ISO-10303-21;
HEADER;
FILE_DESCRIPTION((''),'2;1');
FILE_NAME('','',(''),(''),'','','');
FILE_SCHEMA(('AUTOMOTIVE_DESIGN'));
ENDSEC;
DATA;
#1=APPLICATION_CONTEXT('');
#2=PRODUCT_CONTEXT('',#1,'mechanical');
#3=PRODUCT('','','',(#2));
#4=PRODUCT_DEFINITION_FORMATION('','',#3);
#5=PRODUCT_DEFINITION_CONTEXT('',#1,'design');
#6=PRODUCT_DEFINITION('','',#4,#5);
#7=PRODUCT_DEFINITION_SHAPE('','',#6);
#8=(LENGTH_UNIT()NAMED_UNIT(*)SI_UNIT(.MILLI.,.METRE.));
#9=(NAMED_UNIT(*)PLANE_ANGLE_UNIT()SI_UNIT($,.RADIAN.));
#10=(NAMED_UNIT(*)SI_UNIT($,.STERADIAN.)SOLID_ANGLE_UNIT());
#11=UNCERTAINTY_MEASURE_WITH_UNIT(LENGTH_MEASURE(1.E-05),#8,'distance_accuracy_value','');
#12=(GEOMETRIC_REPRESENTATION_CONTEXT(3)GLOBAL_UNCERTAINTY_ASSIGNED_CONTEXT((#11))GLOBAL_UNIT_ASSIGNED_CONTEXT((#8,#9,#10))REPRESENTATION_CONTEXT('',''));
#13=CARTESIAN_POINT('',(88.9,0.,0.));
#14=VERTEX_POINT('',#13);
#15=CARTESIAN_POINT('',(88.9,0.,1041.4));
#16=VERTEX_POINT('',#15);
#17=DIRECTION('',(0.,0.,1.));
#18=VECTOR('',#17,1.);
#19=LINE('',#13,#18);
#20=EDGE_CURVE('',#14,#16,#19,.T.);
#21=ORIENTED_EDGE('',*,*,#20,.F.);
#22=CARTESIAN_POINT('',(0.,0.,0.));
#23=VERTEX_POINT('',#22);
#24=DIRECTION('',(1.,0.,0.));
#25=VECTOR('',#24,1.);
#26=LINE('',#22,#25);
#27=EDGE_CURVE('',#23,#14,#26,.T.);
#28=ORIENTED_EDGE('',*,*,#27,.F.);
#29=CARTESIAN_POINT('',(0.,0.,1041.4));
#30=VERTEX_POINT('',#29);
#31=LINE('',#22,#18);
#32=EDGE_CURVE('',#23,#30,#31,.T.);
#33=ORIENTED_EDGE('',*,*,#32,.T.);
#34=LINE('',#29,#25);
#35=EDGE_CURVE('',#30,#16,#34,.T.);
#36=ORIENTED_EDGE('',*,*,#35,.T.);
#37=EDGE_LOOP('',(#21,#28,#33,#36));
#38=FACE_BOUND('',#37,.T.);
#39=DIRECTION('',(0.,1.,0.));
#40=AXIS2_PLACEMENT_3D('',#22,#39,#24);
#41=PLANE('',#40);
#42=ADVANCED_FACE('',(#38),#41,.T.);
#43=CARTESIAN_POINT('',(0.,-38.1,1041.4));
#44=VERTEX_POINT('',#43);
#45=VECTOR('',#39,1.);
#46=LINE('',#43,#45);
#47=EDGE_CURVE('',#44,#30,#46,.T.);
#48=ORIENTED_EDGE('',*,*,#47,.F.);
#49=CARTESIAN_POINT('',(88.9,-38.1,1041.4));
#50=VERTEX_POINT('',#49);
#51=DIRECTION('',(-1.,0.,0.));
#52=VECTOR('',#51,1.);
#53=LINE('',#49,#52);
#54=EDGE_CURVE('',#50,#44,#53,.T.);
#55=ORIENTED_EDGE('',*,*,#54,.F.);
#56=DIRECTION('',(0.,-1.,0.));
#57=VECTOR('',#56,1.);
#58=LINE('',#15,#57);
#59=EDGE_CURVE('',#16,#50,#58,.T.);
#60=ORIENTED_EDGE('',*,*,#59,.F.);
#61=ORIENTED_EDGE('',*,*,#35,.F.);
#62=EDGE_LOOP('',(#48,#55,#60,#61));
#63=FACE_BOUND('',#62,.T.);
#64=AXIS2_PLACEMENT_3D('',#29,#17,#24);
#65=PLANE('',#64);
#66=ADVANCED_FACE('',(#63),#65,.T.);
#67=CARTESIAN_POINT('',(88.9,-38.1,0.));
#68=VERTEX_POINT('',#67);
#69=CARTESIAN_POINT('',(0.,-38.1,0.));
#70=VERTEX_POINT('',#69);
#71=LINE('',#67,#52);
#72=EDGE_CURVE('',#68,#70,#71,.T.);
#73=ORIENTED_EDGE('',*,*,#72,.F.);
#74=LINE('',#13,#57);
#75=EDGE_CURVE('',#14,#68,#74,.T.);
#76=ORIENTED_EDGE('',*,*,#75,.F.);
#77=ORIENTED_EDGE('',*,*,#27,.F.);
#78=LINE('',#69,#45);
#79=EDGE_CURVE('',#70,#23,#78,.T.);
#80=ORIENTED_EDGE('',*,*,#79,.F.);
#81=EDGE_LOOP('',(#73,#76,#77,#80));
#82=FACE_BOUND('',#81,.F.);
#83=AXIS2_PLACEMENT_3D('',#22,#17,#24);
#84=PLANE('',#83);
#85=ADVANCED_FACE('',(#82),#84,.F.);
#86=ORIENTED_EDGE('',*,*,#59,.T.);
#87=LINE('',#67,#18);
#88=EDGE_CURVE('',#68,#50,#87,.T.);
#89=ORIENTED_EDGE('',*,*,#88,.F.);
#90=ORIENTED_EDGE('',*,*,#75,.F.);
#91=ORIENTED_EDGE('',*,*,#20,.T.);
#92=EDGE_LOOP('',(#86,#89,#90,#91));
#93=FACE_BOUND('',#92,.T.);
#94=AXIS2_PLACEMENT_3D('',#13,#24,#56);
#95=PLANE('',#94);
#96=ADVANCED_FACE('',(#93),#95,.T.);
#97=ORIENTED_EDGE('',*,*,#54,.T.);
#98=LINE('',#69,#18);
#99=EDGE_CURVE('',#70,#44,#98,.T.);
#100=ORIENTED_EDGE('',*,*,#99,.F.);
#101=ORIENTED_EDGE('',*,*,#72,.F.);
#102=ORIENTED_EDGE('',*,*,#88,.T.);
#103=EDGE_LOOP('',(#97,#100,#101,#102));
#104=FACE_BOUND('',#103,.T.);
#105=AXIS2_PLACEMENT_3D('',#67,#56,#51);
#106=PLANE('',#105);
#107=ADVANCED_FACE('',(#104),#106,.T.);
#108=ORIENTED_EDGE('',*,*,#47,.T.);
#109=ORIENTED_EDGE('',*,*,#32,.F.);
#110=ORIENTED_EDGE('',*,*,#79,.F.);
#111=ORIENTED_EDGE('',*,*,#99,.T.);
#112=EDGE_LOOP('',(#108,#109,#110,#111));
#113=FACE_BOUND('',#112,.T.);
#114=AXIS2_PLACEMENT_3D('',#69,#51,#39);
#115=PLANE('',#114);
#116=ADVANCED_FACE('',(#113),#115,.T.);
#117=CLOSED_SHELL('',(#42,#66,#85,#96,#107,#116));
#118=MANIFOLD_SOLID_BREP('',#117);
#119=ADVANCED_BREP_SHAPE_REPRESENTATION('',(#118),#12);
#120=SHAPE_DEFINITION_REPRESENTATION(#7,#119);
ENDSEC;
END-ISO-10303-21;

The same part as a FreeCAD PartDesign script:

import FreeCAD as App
import Part
import Sketcher

V = App.Vector
Q = App.Units.Quantity


def add_polygon(sketch, points):
    """Adds a closed chain of lines whose ends are joined by coincident constraints."""
    first, n = sketch.GeometryCount, len(points)
    for a, b in zip(points, points[1:] + points[:1]):
        sketch.addGeometry(Part.LineSegment(App.Vector(*a, 0), App.Vector(*b, 0)), False)
    for i in range(n):
        sketch.addConstraint(Sketcher.Constraint("Coincident", first + i, 2, first + (i + 1) % n, 1))

doc = App.newDocument("Part")
params = doc.addObject("Spreadsheet::Sheet", "Params")
for row, (alias, value) in enumerate([
    ("sketch1_width", "3.5 in"),
    ("sketch1_height", "1.5 in"),
    ("pad1_length", "41 in"),
], start=1):
    params.set(f"A{row}", alias)
    params.set(f"B{row}", "=" + value)
    params.setAlias(f"B{row}", alias)

body = doc.addObject("PartDesign::Body", "Body")

sketch1 = doc.addObject("Sketcher::SketchObject", "Sketch")
body.addObject(sketch1)
sketch1.AttachmentSupport = (doc.XY_Plane, [""])
sketch1.MapMode = "FlatFace"
add_polygon(sketch1, [(88.9, 0), (0, 0), (0, -38.1), (88.9, -38.1)])
sketch1.addConstraint(Sketcher.Constraint("Horizontal", 0))
sketch1.addConstraint(Sketcher.Constraint("Vertical", 1))
sketch1.addConstraint(Sketcher.Constraint("Horizontal", 2))
sketch1.addConstraint(Sketcher.Constraint("Vertical", 3))
sketch1.addConstraint(Sketcher.Constraint("Coincident", 0, 2, -1, 1))
sketch1.addConstraint(Sketcher.Constraint("DistanceX", 0, 2, 0, 1, Q("3.5 in")))
sketch1.addConstraint(Sketcher.Constraint("DistanceY", 1, 2, 1, 1, Q("1.5 in")))
sketch1.setExpression("Constraints[9]", "Params.sketch1_width")
sketch1.setExpression("Constraints[10]", "Params.sketch1_height")
pad1 = doc.addObject("PartDesign::Pad", "Pad")
body.addObject(pad1)
pad1.Profile = sketch1
pad1.setExpression("Length", "Params.pad1_length")

doc.recompute()
